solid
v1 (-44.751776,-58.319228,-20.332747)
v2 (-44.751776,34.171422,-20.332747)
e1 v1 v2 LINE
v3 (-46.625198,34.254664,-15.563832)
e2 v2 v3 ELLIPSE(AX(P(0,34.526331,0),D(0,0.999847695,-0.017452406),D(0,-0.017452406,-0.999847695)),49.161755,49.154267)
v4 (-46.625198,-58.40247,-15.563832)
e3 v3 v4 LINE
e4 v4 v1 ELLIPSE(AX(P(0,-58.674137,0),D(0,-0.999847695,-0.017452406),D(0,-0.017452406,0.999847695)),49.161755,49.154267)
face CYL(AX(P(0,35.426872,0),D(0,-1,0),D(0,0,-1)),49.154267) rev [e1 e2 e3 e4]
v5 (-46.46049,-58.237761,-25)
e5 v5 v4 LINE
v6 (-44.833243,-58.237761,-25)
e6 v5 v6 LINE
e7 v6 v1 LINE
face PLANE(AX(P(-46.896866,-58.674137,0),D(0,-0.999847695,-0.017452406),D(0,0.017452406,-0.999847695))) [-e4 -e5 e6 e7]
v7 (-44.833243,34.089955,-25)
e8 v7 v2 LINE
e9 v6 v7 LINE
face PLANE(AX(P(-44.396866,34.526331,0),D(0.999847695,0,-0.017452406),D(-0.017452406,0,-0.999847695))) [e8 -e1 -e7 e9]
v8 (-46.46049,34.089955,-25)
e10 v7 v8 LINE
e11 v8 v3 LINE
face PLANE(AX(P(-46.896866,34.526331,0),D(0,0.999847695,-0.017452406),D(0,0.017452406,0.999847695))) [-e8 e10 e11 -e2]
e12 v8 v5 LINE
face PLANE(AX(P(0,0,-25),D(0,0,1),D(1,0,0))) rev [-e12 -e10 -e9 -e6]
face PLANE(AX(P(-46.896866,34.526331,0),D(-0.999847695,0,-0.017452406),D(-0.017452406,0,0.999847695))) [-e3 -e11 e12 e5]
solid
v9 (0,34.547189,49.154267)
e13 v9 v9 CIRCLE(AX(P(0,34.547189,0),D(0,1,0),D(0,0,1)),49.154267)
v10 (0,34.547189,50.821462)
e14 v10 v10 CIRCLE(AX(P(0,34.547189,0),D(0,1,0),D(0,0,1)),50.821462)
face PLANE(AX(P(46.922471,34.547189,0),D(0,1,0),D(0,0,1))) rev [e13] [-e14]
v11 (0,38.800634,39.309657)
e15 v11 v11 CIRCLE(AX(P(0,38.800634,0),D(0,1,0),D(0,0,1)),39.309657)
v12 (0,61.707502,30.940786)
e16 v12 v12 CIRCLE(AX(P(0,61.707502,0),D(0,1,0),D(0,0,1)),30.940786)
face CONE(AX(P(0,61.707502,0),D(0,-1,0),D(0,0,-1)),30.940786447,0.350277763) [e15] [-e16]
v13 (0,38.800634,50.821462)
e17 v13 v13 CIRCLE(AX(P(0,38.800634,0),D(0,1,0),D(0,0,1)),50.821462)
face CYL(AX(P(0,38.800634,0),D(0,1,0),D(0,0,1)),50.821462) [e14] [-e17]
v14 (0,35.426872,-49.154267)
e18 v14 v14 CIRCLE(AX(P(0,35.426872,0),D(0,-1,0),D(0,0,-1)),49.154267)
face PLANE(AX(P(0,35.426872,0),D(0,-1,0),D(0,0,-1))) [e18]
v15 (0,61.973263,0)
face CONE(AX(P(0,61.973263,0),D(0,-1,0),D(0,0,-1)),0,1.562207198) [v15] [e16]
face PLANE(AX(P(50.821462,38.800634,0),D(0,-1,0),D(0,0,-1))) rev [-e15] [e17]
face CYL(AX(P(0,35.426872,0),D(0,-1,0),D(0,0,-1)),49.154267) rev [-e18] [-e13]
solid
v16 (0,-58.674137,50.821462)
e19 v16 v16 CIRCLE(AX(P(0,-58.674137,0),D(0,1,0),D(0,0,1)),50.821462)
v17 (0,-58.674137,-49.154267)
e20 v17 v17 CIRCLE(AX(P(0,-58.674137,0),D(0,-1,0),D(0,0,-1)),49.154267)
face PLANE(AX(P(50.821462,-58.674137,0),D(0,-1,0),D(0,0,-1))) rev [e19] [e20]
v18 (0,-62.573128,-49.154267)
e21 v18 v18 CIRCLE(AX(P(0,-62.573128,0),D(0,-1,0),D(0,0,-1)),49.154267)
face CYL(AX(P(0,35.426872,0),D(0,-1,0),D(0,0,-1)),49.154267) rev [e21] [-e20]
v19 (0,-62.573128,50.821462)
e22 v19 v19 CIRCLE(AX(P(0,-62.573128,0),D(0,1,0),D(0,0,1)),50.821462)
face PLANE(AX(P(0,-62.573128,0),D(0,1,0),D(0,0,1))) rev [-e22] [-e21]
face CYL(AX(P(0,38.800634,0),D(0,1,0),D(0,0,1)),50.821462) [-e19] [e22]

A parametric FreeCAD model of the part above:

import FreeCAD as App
import Part
import Sketcher


def add_polygon(sketch, points):
    """Adds a closed chain of lines whose ends are joined by coincident constraints."""
    first, n = sketch.GeometryCount, len(points)
    for a, b in zip(points, points[1:] + points[:1]):
        sketch.addGeometry(Part.LineSegment(App.Vector(*a, 0), App.Vector(*b, 0)), False)
    for i in range(n):
        sketch.addConstraint(Sketcher.Constraint("Coincident", first + i, 2, first + (i + 1) % n, 1))

doc = App.newDocument("Part")
params = doc.addObject("Spreadsheet::Sheet", "Params")
for row, (alias, value) in enumerate([
    ("revolution_angle", "360 deg"),
    ("sketch2_width", "2.5 mm"),
    ("pad1_length", "25 mm"),
    ("pad1_taper", "-1 deg"),
    ("revolution2_angle", "360 deg"),
    ("pocket1_length", "98 mm"),
], start=1):
    params.set(f"A{row}", alias)
    params.set(f"B{row}", "=" + value)
    params.setAlias(f"B{row}", alias)

body = doc.addObject("PartDesign::Body", "Body")
body.AllowCompound = True

# Sketch on XY plane
sketch1 = body.newObject("Sketcher::SketchObject", "Sketch")
sketch1.AttachmentSupport = (doc.getObject("XY_Plane"), [""])
sketch1.MapMode = "FlatFace"
add_polygon(sketch1, [(0, 38.800634), (0, -62.573128), (50.821462, -62.573128), (50.821462, -58.674137), (46.922471, -58.674137), (46.922471, 34.547189), (50.821462, 34.547189), (50.821462, 38.800634)])  # lines 0-7
sketch1.addConstraint(Sketcher.Constraint("Vertical", 0))
sketch1.addConstraint(Sketcher.Constraint("Horizontal", 1))
sketch1.addConstraint(Sketcher.Constraint("Vertical", 2))
sketch1.addConstraint(Sketcher.Constraint("Horizontal", 3))
sketch1.addConstraint(Sketcher.Constraint("Vertical", 4))
sketch1.addConstraint(Sketcher.Constraint("Horizontal", 5))
sketch1.addConstraint(Sketcher.Constraint("Vertical", 6))
sketch1.addConstraint(Sketcher.Constraint("Horizontal", 7))
sketch1.addConstraint(Sketcher.Constraint("PointOnObject", 0, 2, -2))
sketch1.addConstraint(Sketcher.Constraint("Vertical", 2, 2, 5, 2))
sketch1.addConstraint(Sketcher.Constraint("Equal", 5, 2))
sketch1.addConstraint(Sketcher.Constraint("DistanceX", 1, 1, 1, 2, 50.821462))
sketch1.addConstraint(Sketcher.Constraint("DistanceX", 3, 2, 3, 1, 3.898991))
sketch1.addConstraint(Sketcher.Constraint("DistanceY", 0, 2, 0, 1, 101.373762))
sketch1.addConstraint(Sketcher.Constraint("DistanceY", 4, 1, 4, 2, 93.221326))
sketch1.addConstraint(Sketcher.Constraint("DistanceY", 0, 2, -1, 1, 62.573128))
revolution = body.newObject("PartDesign::Revolution", "Revolution")
revolution.Profile = sketch1
revolution.ReferenceAxis = (sketch1, ["V_Axis"])
revolution.setExpression("Angle", "Params.revolution_angle")

# Sketch on XY plane
sketch2 = body.newObject("Sketcher::SketchObject", "Sketch001")
sketch2.AttachmentSupport = (doc.getObject("XY_Plane"), [""])
sketch2.MapMode = "FlatFace"
add_polygon(sketch2, [(-46.896866, 34.526331), (-46.896866, -58.674137), (-44.396866, -58.674137), (-44.396866, 34.526331)])  # lines 0-3
add_polygon(sketch2, [(-41.374495, 34.547189), (-41.374495, -58.674137), (-38.874495, -58.674137), (-38.874495, 34.547189)])  # lines 4-7
sketch2.addConstraint(Sketcher.Constraint("Vertical", 0))
sketch2.addConstraint(Sketcher.Constraint("Horizontal", 1))
sketch2.addConstraint(Sketcher.Constraint("Vertical", 2))
sketch2.addConstraint(Sketcher.Constraint("Horizontal", 3))
sketch2.addConstraint(Sketcher.Constraint("Vertical", 4))
sketch2.addConstraint(Sketcher.Constraint("Horizontal", 5))
sketch2.addConstraint(Sketcher.Constraint("Vertical", 6))
sketch2.addConstraint(Sketcher.Constraint("Horizontal", 7))
sketch2.addConstraint(Sketcher.Constraint("Horizontal", 1, 2, 4, 2))
sketch2.addConstraint(Sketcher.Constraint("Equal", 3, 5))
sketch2.addConstraint(Sketcher.Constraint("DistanceX", 1, 1, 1, 2, 2.5))
sketch2.addConstraint(Sketcher.Constraint("DistanceY", 0, 2, 0, 1, 93.200469))
sketch2.addConstraint(Sketcher.Constraint("DistanceY", 4, 2, 4, 1, 93.221326))
sketch2.addConstraint(Sketcher.Constraint("DistanceY", -1, 1, 2, 2, 34.526331))
sketch2.addConstraint(Sketcher.Constraint("DistanceX", 1, 2, 4, 2, 3.022371))
sketch2.addConstraint(Sketcher.Constraint("DistanceX", 0, 2, -1, 1, 46.896866))
sketch2.setExpression("Constraints[18]", "Params.sketch2_width")
pad1 = body.newObject("PartDesign::Pad", "Pad")
pad1.Profile = sketch2
pad1.setExpression("Length", "Params.pad1_length")
pad1.Reversed = True
pad1.setExpression("TaperAngle", "Params.pad1_taper")

# Sketch on XY plane
sketch3 = body.newObject("Sketcher::SketchObject", "Sketch002")
sketch3.AttachmentSupport = (doc.getObject("XY_Plane"), [""])
sketch3.MapMode = "FlatFace"
add_polygon(sketch3, [(0, 38.800634), (0, 61.973263), (-30.940786, 61.707502), (-39.309657, 38.800634)])  # lines 0-3
sketch3.addConstraint(Sketcher.Constraint("Vertical", 0))
sketch3.addConstraint(Sketcher.Constraint("Horizontal", 3))
sketch3.addConstraint(Sketcher.Constraint("PointOnObject", 0, 2, -2))
sketch3.addConstraint(Sketcher.Constraint("DistanceY", 0, 1, 0, 2, 23.172629))
sketch3.addConstraint(Sketcher.Constraint("DistanceY", -1, 1, 1, 2, 61.707502))
sketch3.addConstraint(Sketcher.Constraint("DistanceX", 3, 1, 3, 2, 39.309657))
sketch3.addConstraint(Sketcher.Constraint("DistanceY", 1, 2, 0, 2, 0.265761))
sketch3.addConstraint(Sketcher.Constraint("DistanceX", 2, 2, 1, 2, 8.368871))
revolution2 = body.newObject("PartDesign::Revolution", "Revolution001")
revolution2.Profile = sketch3
revolution2.ReferenceAxis = (sketch3, ["V_Axis"])
revolution2.setExpression("Angle", "Params.revolution2_angle")

# Sketch on XZ plane
sketch4 = body.newObject("Sketcher::SketchObject", "Sketch003")
sketch4.AttachmentSupport = (doc.getObject("XZ_Plane"), [""])
sketch4.MapMode = "FlatFace"
sketch4.AttachmentOffset = App.Placement(App.Vector(0, 0, 62.573128), App.Rotation())
sketch4.addGeometry(Part.Circle(App.Vector(0, 0, 0), App.Vector(0, 0, 1), 49.154267), False)
sketch4.addConstraint(Sketcher.Constraint("Coincident", 0, 3, -1, 1))
sketch4.addConstraint(Sketcher.Constraint("Diameter", 0, 98.308535))
pocket1 = body.newObject("PartDesign::Pocket", "Pocket")
pocket1.Profile = sketch4
pocket1.setExpression("Length", "Params.pocket1_length")

doc.recompute()
